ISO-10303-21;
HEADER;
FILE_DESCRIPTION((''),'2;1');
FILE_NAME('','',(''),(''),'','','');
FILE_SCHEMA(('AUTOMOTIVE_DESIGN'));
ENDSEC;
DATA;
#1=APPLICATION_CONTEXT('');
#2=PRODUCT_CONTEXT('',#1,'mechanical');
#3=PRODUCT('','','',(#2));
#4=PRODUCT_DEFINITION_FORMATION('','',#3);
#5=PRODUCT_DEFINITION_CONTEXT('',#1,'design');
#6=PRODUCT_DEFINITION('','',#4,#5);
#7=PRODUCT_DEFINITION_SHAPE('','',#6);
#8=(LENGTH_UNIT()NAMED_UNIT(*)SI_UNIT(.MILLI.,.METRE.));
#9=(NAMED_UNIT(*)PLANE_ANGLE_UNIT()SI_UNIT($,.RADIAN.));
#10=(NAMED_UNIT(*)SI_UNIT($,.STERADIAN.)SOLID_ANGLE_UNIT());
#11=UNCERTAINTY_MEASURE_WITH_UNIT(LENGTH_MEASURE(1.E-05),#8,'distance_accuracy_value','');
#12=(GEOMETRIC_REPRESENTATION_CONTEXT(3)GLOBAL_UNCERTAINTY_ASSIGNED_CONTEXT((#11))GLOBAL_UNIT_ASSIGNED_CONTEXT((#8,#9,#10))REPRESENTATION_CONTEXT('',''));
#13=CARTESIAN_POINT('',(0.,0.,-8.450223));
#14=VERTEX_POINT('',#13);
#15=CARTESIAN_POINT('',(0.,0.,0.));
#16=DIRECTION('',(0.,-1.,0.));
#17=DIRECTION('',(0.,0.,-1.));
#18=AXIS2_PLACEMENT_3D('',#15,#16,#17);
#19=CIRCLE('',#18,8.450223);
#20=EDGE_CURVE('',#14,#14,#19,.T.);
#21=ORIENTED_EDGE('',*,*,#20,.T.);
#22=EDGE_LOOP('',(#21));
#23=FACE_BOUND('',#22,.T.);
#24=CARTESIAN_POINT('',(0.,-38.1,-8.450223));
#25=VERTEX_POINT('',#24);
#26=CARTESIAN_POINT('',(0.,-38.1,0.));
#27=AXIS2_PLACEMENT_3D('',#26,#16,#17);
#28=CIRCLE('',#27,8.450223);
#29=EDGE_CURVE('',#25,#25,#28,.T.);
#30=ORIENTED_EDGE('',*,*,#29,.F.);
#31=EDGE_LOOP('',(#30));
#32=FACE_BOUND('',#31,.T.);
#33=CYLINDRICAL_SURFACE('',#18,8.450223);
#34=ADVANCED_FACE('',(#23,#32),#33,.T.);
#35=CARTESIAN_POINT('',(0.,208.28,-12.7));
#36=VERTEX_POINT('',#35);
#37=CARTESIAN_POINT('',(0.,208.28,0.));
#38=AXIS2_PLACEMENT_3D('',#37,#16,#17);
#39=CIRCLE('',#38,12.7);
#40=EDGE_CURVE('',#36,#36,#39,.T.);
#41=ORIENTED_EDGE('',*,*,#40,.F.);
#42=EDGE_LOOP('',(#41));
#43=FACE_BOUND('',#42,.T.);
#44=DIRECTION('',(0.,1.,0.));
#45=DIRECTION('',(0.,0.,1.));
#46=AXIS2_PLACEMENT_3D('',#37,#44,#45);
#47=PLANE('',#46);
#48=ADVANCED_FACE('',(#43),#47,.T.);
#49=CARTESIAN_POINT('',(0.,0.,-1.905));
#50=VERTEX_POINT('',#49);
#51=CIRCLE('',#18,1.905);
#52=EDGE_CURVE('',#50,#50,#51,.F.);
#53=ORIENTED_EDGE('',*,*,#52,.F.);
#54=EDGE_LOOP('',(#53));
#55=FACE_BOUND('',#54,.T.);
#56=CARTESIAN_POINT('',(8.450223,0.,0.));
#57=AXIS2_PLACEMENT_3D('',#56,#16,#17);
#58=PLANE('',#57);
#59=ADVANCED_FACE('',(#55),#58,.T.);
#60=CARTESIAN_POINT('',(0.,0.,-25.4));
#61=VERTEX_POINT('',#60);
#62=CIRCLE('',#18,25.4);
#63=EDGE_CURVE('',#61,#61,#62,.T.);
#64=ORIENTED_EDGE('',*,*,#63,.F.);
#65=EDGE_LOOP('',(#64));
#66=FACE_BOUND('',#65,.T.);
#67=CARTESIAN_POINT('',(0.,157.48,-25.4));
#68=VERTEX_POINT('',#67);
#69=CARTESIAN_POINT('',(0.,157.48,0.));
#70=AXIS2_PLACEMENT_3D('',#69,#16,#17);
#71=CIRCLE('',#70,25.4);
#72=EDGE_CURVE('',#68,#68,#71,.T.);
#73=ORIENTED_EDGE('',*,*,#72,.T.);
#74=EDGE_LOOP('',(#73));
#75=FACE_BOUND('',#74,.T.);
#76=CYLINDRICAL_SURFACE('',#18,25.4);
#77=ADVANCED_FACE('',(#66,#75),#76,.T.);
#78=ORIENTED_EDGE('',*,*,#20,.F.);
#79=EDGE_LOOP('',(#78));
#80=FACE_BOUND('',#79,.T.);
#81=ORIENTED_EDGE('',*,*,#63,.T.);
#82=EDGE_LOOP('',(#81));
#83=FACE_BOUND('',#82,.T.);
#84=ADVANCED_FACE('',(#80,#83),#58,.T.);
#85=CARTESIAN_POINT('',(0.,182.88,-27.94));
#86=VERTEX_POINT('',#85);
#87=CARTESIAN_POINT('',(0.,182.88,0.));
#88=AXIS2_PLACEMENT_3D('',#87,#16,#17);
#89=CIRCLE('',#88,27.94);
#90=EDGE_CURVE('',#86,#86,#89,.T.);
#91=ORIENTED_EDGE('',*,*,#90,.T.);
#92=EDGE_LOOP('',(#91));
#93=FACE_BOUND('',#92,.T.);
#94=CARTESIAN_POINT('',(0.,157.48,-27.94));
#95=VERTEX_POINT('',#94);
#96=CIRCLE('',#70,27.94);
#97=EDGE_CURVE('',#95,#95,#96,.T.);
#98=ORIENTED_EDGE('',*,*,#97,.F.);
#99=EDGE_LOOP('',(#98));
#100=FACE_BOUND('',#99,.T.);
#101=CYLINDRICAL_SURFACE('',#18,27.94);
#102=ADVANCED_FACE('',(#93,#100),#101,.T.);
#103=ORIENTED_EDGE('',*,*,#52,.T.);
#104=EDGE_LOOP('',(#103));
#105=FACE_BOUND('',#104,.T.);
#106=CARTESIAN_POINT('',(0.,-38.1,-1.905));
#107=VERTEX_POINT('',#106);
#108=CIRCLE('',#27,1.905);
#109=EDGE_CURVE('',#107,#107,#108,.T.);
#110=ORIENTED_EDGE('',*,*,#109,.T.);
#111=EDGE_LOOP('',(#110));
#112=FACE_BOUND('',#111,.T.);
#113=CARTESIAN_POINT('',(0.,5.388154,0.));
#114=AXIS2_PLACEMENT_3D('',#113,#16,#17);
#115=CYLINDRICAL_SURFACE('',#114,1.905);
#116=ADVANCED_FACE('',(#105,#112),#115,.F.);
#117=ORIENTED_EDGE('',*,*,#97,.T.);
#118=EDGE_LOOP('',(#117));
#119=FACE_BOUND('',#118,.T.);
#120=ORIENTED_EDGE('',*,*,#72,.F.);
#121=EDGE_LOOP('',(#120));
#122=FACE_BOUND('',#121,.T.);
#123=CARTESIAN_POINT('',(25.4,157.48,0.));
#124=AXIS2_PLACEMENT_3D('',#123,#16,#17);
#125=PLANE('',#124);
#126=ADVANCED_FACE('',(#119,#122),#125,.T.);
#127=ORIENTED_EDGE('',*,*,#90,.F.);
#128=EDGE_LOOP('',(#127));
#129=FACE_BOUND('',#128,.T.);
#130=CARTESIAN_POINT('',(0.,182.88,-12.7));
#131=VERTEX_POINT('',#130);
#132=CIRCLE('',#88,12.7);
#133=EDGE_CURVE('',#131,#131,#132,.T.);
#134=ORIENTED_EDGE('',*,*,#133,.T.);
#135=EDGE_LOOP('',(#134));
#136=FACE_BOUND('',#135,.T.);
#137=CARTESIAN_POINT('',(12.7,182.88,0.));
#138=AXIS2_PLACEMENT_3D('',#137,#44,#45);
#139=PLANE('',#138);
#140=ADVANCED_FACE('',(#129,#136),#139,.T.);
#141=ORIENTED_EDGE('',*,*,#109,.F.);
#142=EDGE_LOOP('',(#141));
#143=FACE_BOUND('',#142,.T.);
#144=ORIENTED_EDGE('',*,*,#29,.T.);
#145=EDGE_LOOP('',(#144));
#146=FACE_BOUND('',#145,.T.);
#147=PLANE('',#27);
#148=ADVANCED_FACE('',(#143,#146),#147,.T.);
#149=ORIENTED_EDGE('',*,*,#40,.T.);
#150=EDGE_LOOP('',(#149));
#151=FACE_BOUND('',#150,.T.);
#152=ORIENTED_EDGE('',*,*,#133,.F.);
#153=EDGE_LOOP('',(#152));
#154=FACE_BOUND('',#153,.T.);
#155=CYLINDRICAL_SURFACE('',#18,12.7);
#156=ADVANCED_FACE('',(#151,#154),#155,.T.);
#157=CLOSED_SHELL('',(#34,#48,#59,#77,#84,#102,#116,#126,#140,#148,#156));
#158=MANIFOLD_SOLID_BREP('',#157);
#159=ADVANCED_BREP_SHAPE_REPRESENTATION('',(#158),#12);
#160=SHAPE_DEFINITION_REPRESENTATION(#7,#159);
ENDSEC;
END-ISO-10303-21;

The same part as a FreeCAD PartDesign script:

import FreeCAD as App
import Part
import Sketcher
from FreeCAD import Vector
Q = App.Units.Quantity

doc = App.newDocument("Part")
body = doc.addObject("PartDesign::Body", "Body")

# Sketch on XY plane
sketch1 = body.newObject("Sketcher::SketchObject", "Sketch")
sketch1.AttachmentSupport = (doc.getObject("XY_Plane"), [""])
sketch1.MapMode = "FlatFace"
sketch1.addGeometry(Part.LineSegment(Vector(27.9, 182.9, 0), Vector(12.7, 182.9, 0)), False)
sketch1.addGeometry(Part.LineSegment(Vector(12.7, 182.9, 0), Vector(12.7, 208.3, 0)), False)
sketch1.addGeometry(Part.LineSegment(Vector(12.7, 208.3, 0), Vector(0, 208.3, 0)), False)
sketch1.addGeometry(Part.LineSegment(Vector(0, 208.3, 0), Vector(0, -38.1, 0)), False)
sketch1.addGeometry(Part.LineSegment(Vector(0, -38.1, 0), Vector(8.5, -38.1, 0)), False)
sketch1.addGeometry(Part.LineSegment(Vector(8.5, -38.1, 0), Vector(8.5, 0, 0)), False)
sketch1.addGeometry(Part.LineSegment(Vector(8.5, 0, 0), Vector(25.4, 0, 0)), False)
sketch1.addGeometry(Part.LineSegment(Vector(25.4, 0, 0), Vector(25.4, 157.5, 0)), False)
sketch1.addGeometry(Part.LineSegment(Vector(25.4, 157.5, 0), Vector(27.9, 157.5, 0)), False)
sketch1.addGeometry(Part.LineSegment(Vector(27.9, 157.5, 0), Vector(27.9, 182.9, 0)), False)
sketch1.addConstraint(Sketcher.Constraint("Coincident", 0, 2, 1, 1))
sketch1.addConstraint(Sketcher.Constraint("Coincident", 1, 2, 2, 1))
sketch1.addConstraint(Sketcher.Constraint("Coincident", 2, 2, 3, 1))
sketch1.addConstraint(Sketcher.Constraint("Coincident", 3, 2, 4, 1))
sketch1.addConstraint(Sketcher.Constraint("Coincident", 4, 2, 5, 1))
sketch1.addConstraint(Sketcher.Constraint("Coincident", 5, 2, 6, 1))
sketch1.addConstraint(Sketcher.Constraint("Coincident", 6, 2, 7, 1))
sketch1.addConstraint(Sketcher.Constraint("Coincident", 7, 2, 8, 1))
sketch1.addConstraint(Sketcher.Constraint("Coincident", 8, 2, 9, 1))
sketch1.addConstraint(Sketcher.Constraint("Coincident", 9, 2, 0, 1))
sketch1.addConstraint(Sketcher.Constraint("Horizontal", 0))
sketch1.addConstraint(Sketcher.Constraint("Vertical", 1))
sketch1.addConstraint(Sketcher.Constraint("Horizontal", 2))
sketch1.addConstraint(Sketcher.Constraint("Vertical", 3))
sketch1.addConstraint(Sketcher.Constraint("Horizontal", 4))
sketch1.addConstraint(Sketcher.Constraint("Vertical", 5))
sketch1.addConstraint(Sketcher.Constraint("Horizontal", 6))
sketch1.addConstraint(Sketcher.Constraint("Vertical", 7))
sketch1.addConstraint(Sketcher.Constraint("Horizontal", 8))
sketch1.addConstraint(Sketcher.Constraint("Vertical", 9))
sketch1.addConstraint(Sketcher.Constraint("PointOnObject", 2, 2, -2))
sketch1.addConstraint(Sketcher.Constraint("PointOnObject", 5, 2, -1))
sketch1.addConstraint(Sketcher.Constraint("Equal", 1, 9))
sketch1.addConstraint(Sketcher.Constraint("DistanceY", 1, 1, 1, 2, Q("1 in")))
sketch1.addConstraint(Sketcher.Constraint("DistanceX", 0, 2, 0, 1, Q("0.6 in")))
sketch1.addConstraint(Sketcher.Constraint("DistanceX", 2, 2, 2, 1, Q("0.5 in")))
sketch1.addConstraint(Sketcher.Constraint("DistanceX", 8, 1, 8, 2, Q("0.1 in")))
sketch1.addConstraint(Sketcher.Constraint("DistanceY", 3, 2, 3, 1, Q("9.7 in")))
sketch1.addConstraint(Sketcher.Constraint("DistanceY", 5, 1, 5, 2, Q("1.5 in")))
sketch1.addConstraint(Sketcher.Constraint("DistanceX", 4, 1, 4, 2, 8.450223))
revolution = body.newObject("PartDesign::Revolution", "Revolution")
revolution.Profile = sketch1
revolution.ReferenceAxis = (sketch1, ["V_Axis"])
revolution.Angle = 360

# Sketch on XZ plane
sketch2 = body.newObject("Sketcher::SketchObject", "Sketch001")
sketch2.AttachmentSupport = (doc.getObject("XZ_Plane"), [""])
sketch2.MapMode = "FlatFace"
sketch2.AttachmentOffset = App.Placement(Vector(0, 0, 1.5 * 25.4), App.Rotation())
sketch2.addGeometry(Part.Circle(Vector(0, 0, 0), Vector(0, 0, 1), 1.9), False)
sketch2.addConstraint(Sketcher.Constraint("Coincident", 0, 3, -1, 1))
sketch2.addConstraint(Sketcher.Constraint("Diameter", 0, Q("0.15 in")))
pocket1 = body.newObject("PartDesign::Pocket", "Pocket")
pocket1.Profile = sketch2
pocket1.Length = Q("1.5 in")

doc.recompute()
